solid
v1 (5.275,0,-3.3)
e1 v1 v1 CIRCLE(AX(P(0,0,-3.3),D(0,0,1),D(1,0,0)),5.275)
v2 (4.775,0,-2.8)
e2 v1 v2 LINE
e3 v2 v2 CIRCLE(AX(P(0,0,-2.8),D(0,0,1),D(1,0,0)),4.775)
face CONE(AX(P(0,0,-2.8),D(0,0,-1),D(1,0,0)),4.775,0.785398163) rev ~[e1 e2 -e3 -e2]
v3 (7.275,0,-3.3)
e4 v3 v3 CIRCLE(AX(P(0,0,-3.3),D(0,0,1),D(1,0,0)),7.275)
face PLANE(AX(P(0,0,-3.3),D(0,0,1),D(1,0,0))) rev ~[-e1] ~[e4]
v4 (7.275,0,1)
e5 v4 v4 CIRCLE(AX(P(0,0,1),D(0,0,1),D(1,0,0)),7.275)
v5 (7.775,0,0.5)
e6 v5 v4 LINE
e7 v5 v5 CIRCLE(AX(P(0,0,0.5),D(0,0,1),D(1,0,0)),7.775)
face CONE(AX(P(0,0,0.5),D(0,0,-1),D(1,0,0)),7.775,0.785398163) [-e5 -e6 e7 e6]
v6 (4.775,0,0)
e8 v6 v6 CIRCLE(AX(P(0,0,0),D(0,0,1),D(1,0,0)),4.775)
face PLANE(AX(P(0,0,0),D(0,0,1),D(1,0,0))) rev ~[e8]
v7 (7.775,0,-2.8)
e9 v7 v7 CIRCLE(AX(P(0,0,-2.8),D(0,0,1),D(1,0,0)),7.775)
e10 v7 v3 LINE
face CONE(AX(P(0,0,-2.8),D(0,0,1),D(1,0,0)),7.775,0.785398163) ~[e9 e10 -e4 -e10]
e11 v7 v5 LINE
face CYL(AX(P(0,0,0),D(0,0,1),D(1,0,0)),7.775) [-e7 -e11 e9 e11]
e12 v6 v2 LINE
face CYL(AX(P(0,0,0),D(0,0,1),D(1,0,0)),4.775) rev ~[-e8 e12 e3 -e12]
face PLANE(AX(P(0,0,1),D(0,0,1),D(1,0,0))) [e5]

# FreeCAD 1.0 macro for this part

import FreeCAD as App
import Part
import Sketcher
from FreeCAD import Vector
Q = App.Units.Quantity


def edges_at(feature, points):
    """Names of the edges that pass closest to the given points."""
    edges = feature.Shape.Edges
    near = lambda p: min(range(len(edges)), key=lambda i: edges[i].distToShape(Part.Vertex(*p))[0])
    return sorted({f"Edge{near(p) + 1}" for p in points})

doc = App.newDocument("Part")
body = doc.addObject("PartDesign::Body", "Body")

sketch1 = body.newObject("Sketcher::SketchObject", "Sketch")
sketch1.AttachmentSupport = (doc.getObject("XY_Plane"), [""])
sketch1.MapMode = "FlatFace"
sketch1.addGeometry(Part.Circle(Vector(0, 0, 0), Vector(0, 0, 1), 7.775), False)
sketch1.addConstraint(Sketcher.Constraint("Coincident", 0, 3, -1, 1))
sketch1.addConstraint(Sketcher.Constraint("Diameter", 0, Q("15.55 mm")))
pad1 = body.newObject("PartDesign::Pad", "Pad")
pad1.Profile = sketch1
pad1.Length = 1

sketch2 = body.newObject("Sketcher::SketchObject", "Sketch001")
sketch2.AttachmentSupport = (doc.getObject("XY_Plane"), [""])
sketch2.MapMode = "FlatFace"
sketch2.addGeometry(Part.Circle(Vector(0, 0, 0), Vector(0, 0, 1), 7.775), False)
sketch2.addGeometry(Part.Circle(Vector(0, 0, 0), Vector(0, 0, 1), 4.775), False)
sketch2.addConstraint(Sketcher.Constraint("Coincident", 0, 3, -1, 1))
sketch2.addConstraint(Sketcher.Constraint("Coincident", 1, 3, -1, 1))
sketch2.addConstraint(Sketcher.Constraint("Diameter", 0, Q("15.55 mm")))
sketch2.addConstraint(Sketcher.Constraint("Diameter", 1, Q("9.55 mm")))
pad2 = body.newObject("PartDesign::Pad", "Pad001")
pad2.Profile = sketch2
pad2.Length = 3.3
pad2.Reversed = True
doc.recompute()

chamfer = body.newObject("PartDesign::Chamfer", "Chamfer")
chamfer.Base = (pad2, edges_at(pad2, [(-7.249, -2.812, 1), (-7.249, 2.812, -3.3), (-4.452, -1.727, -3.3)]))
chamfer.Size = 0.5

doc.recompute()
